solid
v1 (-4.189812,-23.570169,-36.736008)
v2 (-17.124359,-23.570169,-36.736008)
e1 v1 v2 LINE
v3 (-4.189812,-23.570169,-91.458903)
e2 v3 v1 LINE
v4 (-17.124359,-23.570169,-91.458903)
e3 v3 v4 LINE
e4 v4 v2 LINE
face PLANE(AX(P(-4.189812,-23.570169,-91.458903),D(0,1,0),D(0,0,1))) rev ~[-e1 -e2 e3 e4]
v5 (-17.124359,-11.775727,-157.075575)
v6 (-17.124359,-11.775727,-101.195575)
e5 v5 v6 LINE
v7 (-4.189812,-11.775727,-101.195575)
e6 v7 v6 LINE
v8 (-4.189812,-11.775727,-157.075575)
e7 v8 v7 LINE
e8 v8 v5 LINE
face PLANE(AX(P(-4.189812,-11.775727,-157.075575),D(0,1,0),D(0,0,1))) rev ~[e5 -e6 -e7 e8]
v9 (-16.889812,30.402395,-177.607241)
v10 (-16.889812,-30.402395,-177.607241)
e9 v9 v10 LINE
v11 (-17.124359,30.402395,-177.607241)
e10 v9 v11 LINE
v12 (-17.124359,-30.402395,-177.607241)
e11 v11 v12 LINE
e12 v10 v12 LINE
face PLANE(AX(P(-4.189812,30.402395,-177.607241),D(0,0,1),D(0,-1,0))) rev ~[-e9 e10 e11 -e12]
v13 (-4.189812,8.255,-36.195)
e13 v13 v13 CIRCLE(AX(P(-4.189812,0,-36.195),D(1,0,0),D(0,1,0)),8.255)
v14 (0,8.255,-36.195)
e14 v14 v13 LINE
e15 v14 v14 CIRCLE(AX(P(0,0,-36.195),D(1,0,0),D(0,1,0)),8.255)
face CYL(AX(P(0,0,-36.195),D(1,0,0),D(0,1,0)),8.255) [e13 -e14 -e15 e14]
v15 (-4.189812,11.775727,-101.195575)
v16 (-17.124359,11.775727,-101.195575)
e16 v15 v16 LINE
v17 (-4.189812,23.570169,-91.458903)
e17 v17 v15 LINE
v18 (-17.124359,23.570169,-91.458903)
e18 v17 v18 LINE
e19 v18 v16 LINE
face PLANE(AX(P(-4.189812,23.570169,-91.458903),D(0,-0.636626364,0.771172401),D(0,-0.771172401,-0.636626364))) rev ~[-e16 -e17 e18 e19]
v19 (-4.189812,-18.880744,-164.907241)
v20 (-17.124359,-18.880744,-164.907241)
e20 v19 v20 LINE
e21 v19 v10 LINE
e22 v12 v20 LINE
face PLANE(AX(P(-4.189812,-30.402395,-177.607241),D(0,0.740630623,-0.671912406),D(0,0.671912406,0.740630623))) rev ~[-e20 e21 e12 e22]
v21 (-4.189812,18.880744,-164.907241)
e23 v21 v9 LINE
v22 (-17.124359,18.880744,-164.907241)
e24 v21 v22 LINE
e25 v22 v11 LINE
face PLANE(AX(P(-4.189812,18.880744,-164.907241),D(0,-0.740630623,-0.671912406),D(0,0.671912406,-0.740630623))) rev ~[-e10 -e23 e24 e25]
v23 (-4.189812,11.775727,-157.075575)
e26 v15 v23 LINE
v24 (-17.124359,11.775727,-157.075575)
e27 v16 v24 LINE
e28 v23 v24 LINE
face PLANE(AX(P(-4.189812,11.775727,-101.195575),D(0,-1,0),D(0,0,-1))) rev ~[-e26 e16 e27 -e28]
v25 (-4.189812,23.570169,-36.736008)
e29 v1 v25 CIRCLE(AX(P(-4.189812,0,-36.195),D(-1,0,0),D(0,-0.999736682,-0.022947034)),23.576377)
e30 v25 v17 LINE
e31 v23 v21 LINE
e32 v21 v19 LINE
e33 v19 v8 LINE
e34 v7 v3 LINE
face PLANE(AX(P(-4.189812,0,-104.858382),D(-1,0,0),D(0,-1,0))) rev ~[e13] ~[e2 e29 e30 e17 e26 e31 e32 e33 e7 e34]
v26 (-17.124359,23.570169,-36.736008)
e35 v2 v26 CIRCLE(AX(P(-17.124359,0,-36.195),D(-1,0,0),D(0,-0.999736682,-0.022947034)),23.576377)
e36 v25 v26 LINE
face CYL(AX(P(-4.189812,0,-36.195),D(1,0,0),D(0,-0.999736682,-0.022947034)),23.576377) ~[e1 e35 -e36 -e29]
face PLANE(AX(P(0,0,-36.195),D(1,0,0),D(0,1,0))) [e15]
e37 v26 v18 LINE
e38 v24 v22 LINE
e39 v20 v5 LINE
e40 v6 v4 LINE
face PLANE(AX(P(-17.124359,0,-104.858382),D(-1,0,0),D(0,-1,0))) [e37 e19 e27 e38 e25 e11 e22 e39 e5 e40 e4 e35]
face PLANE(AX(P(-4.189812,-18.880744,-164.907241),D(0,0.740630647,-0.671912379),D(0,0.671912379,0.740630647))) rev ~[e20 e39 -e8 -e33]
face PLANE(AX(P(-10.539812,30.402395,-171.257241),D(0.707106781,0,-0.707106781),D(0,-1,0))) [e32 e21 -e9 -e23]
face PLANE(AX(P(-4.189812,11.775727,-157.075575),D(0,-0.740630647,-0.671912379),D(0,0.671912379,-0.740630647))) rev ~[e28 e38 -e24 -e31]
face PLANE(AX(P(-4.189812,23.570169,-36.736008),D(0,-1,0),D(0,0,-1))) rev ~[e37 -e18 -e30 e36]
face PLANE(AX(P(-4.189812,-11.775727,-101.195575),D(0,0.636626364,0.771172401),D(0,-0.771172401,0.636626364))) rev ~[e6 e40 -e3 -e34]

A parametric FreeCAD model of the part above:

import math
import FreeCAD as App
import Part
import Sketcher
from FreeCAD import Vector
Q = App.Units.Quantity


def edges_at(feature, points):
    """Names of the edges that pass closest to the given points."""
    edges = feature.Shape.Edges
    near = lambda p: min(range(len(edges)), key=lambda i: edges[i].distToShape(Part.Vertex(*p))[0])
    return sorted({f"Edge{near(p) + 1}" for p in points})

doc = App.newDocument("Part")
body = doc.addObject("PartDesign::Body", "Body")

# Sketch on YZ plane
sketch1 = body.newObject("Sketcher::SketchObject", "Sketch")
sketch1.AttachmentSupport = (doc.getObject("YZ_Plane"), [""])
sketch1.MapMode = "FlatFace"
sketch1.addGeometry(Part.Circle(Vector(0, -36, 0), Vector(0, 0, 1), 8), False)
sketch1.addConstraint([
    Sketcher.Constraint("PointOnObject", 0, 3, -2),
    Sketcher.Constraint("Diameter", 0, Q("0.65 in")),
    Sketcher.Constraint("DistanceY", 0, 3, -1, 1, Q("1.425 in")),
])
pad1 = body.newObject("PartDesign::Pad", "Pad")
pad1.Profile = sketch1
pad1.Length = 4.189812
pad1.Reversed = True

# Sketch on YZ plane
sketch2 = body.newObject("Sketcher::SketchObject", "Sketch001")
sketch2.AttachmentSupport = (doc.getObject("YZ_Plane"), [""])
sketch2.MapMode = "FlatFace"
sketch2.AttachmentOffset = App.Placement(Vector(0, 0, -4.189812), App.Rotation())
sketch2.addGeometry([
    Part.ArcOfCircle(Part.Circle(Vector(0, -36, 0), Vector(0, 0, 1), 24), math.radians(-1), math.radians(181)),  # 0
    Part.LineSegment(Vector(24, -37, 0), Vector(24, -91, 0)),  # 1
    Part.LineSegment(Vector(24, -91, 0), Vector(12, -101, 0)),  # 2
    Part.LineSegment(Vector(12, -101, 0), Vector(12, -157, 0)),  # 3
    Part.LineSegment(Vector(12, -157, 0), Vector(19, -165, 0)),  # 4
    Part.LineSegment(Vector(19, -165, 0), Vector(30, -178, 0)),  # 5
    Part.LineSegment(Vector(30, -178, 0), Vector(-30, -178, 0)),  # 6
    Part.LineSegment(Vector(-30, -178, 0), Vector(-19, -165, 0)),  # 7
    Part.LineSegment(Vector(-19, -165, 0), Vector(-12, -157, 0)),  # 8
    Part.LineSegment(Vector(-12, -157, 0), Vector(-12, -101, 0)),  # 9
    Part.LineSegment(Vector(-12, -101, 0), Vector(-24, -91, 0)),  # 10
    Part.LineSegment(Vector(-24, -91, 0), Vector(-24, -37, 0)),  # 11
], False)
sketch2.addConstraint([
    Sketcher.Constraint("Coincident", 0, 1, 1, 1),
    Sketcher.Constraint("Coincident", 1, 2, 2, 1),
    Sketcher.Constraint("Coincident", 2, 2, 3, 1),
    Sketcher.Constraint("Coincident", 3, 2, 4, 1),
    Sketcher.Constraint("Coincident", 4, 2, 5, 1),
    Sketcher.Constraint("Coincident", 5, 2, 6, 1),
    Sketcher.Constraint("Coincident", 6, 2, 7, 1),
    Sketcher.Constraint("Coincident", 7, 2, 8, 1),
    Sketcher.Constraint("Coincident", 8, 2, 9, 1),
    Sketcher.Constraint("Coincident", 9, 2, 10, 1),
    Sketcher.Constraint("Coincident", 10, 2, 11, 1),
    Sketcher.Constraint("Coincident", 11, 2, 0, 2),
    Sketcher.Constraint("Vertical", 1),
    Sketcher.Constraint("Vertical", 3),
    Sketcher.Constraint("Horizontal", 6),
    Sketcher.Constraint("Vertical", 9),
    Sketcher.Constraint("Vertical", 11),
    Sketcher.Constraint("Symmetric", 4, 2, 7, 2, -2),
    Sketcher.Constraint("Symmetric", 3, 2, 8, 2, -2),
    Sketcher.Constraint("Symmetric", 1, 2, 10, 2, -2),
    Sketcher.Constraint("PointOnObject", 0, 3, -2),
    Sketcher.Constraint("Parallel", 4, 5),
    Sketcher.Constraint("Parallel", 7, 8),
    Sketcher.Constraint("Horizontal", 2, 2, 9, 2),
    Sketcher.Constraint("DistanceY", 3, 2, 3, 1, Q("2.2 in")),
    Sketcher.Constraint("DistanceY", 5, 2, 4, 2, Q("0.5 in")),
    Sketcher.Constraint("DistanceY", 0, 3, -1, 1, Q("1.425 in")),
    Sketcher.Constraint("Radius", 0, 23.576377),
    Sketcher.Constraint("DistanceX", 6, 2, 6, 1, 60.80479),
    Sketcher.Constraint("Distance", 2, 15.29417),
    Sketcher.Constraint("Distance", 4, 10.574321),
    Sketcher.Constraint("Distance", 5, 17.147549),
    Sketcher.Constraint("DistanceY", 1, 2, 1, 1, 54.722895),
    Sketcher.Constraint("DistanceX", -1, 1, 0, 1, 23.570169),
])
pad2 = body.newObject("PartDesign::Pad", "Pad001")
pad2.Profile = sketch2
pad2.Length = 12.934547
pad2.Reversed = True
doc.recompute()

chamfer = body.newObject("PartDesign::Chamfer", "Chamfer")
chamfer.Base = (pad2, edges_at(pad2, [(-4.19, 0, -177.607)]))
chamfer.Size = Q("0.5 in")

doc.recompute()
